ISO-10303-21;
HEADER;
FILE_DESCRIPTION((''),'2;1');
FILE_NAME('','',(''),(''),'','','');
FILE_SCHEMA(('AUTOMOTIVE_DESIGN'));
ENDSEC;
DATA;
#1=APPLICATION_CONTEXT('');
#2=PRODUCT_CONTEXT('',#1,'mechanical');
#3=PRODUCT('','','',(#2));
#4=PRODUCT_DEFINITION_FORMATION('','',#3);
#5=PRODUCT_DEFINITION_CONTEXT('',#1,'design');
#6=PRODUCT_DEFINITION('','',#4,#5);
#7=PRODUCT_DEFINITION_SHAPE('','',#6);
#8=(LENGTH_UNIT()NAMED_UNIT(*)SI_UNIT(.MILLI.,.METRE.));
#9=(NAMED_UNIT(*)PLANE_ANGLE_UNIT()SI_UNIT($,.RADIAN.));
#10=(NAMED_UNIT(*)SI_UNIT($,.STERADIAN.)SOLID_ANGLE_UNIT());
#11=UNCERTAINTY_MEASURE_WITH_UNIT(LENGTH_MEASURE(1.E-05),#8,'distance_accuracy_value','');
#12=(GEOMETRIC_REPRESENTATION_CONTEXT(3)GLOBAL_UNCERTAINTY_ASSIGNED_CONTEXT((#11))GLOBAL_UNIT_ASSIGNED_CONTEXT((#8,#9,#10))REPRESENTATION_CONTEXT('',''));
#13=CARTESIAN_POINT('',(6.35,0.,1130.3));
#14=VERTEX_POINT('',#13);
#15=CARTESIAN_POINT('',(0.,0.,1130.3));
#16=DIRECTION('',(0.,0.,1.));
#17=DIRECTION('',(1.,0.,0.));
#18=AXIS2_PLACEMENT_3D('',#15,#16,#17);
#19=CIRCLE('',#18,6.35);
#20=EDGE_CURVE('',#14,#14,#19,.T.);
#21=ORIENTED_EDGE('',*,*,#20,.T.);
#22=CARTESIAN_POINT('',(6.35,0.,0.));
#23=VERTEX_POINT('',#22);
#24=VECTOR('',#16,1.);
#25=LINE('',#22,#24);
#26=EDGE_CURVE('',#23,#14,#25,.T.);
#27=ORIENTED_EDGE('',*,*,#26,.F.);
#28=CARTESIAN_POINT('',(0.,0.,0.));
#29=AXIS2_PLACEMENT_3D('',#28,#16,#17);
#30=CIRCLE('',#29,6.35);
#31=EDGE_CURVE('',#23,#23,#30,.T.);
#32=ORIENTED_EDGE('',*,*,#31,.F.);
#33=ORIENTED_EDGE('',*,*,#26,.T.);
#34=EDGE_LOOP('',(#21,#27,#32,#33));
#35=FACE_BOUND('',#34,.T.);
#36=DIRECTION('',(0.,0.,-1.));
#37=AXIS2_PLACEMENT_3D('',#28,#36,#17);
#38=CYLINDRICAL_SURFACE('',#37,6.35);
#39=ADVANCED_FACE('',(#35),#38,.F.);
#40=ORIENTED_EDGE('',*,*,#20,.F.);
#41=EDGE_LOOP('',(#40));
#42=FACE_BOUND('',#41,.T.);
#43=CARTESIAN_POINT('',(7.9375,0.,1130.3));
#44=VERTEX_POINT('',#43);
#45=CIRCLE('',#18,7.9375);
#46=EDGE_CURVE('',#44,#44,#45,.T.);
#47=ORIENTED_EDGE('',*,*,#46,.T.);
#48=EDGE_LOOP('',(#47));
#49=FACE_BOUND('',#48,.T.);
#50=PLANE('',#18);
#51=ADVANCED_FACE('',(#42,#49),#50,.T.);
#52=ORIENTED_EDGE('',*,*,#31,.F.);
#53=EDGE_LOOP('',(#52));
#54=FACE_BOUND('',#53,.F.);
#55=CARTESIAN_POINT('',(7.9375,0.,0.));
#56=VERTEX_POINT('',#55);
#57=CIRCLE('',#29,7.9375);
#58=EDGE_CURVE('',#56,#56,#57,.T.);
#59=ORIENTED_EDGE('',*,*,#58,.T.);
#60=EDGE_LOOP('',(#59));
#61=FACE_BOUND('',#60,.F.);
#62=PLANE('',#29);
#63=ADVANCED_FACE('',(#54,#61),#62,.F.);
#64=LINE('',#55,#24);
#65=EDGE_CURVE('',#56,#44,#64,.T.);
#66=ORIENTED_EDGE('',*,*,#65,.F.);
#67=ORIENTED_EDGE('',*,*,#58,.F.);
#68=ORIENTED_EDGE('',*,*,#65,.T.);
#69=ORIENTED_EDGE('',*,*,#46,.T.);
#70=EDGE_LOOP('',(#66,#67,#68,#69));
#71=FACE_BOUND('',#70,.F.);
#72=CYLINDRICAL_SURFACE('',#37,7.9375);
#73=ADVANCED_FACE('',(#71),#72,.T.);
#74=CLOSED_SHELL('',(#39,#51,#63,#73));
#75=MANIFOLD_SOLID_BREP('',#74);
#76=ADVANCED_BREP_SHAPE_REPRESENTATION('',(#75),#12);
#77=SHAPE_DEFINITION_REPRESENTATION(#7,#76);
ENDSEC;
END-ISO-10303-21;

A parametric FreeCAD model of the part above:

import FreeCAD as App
import Part
import Sketcher
from FreeCAD import Vector
Q = App.Units.Quantity

doc = App.newDocument("Part")
body = doc.addObject("PartDesign::Body", "Body")

# Sketch on XY plane
sketch1 = body.newObject("Sketcher::SketchObject", "Sketch")
sketch1.AttachmentSupport = (doc.getObject("XY_Plane"), [""])
sketch1.MapMode = "FlatFace"
sketch1.addGeometry([
    Part.Circle(Vector(0, 0, 0), Vector(0, 0, 1), 8),
    Part.Circle(Vector(0, 0, 0), Vector(0, 0, 1), 6),
], False)
sketch1.addConstraint([
    Sketcher.Constraint("Coincident", 0, 3, -1, 1),
    Sketcher.Constraint("Coincident", 1, 3, -1, 1),
    Sketcher.Constraint("Diameter", 1, Q("0.5 in")),
    Sketcher.Constraint("Diameter", 0, Q("0.625 in")),
])
pad1 = body.newObject("PartDesign::Pad", "Pad")
pad1.Profile = sketch1
pad1.Length = Q("44.5 in")

doc.recompute()
